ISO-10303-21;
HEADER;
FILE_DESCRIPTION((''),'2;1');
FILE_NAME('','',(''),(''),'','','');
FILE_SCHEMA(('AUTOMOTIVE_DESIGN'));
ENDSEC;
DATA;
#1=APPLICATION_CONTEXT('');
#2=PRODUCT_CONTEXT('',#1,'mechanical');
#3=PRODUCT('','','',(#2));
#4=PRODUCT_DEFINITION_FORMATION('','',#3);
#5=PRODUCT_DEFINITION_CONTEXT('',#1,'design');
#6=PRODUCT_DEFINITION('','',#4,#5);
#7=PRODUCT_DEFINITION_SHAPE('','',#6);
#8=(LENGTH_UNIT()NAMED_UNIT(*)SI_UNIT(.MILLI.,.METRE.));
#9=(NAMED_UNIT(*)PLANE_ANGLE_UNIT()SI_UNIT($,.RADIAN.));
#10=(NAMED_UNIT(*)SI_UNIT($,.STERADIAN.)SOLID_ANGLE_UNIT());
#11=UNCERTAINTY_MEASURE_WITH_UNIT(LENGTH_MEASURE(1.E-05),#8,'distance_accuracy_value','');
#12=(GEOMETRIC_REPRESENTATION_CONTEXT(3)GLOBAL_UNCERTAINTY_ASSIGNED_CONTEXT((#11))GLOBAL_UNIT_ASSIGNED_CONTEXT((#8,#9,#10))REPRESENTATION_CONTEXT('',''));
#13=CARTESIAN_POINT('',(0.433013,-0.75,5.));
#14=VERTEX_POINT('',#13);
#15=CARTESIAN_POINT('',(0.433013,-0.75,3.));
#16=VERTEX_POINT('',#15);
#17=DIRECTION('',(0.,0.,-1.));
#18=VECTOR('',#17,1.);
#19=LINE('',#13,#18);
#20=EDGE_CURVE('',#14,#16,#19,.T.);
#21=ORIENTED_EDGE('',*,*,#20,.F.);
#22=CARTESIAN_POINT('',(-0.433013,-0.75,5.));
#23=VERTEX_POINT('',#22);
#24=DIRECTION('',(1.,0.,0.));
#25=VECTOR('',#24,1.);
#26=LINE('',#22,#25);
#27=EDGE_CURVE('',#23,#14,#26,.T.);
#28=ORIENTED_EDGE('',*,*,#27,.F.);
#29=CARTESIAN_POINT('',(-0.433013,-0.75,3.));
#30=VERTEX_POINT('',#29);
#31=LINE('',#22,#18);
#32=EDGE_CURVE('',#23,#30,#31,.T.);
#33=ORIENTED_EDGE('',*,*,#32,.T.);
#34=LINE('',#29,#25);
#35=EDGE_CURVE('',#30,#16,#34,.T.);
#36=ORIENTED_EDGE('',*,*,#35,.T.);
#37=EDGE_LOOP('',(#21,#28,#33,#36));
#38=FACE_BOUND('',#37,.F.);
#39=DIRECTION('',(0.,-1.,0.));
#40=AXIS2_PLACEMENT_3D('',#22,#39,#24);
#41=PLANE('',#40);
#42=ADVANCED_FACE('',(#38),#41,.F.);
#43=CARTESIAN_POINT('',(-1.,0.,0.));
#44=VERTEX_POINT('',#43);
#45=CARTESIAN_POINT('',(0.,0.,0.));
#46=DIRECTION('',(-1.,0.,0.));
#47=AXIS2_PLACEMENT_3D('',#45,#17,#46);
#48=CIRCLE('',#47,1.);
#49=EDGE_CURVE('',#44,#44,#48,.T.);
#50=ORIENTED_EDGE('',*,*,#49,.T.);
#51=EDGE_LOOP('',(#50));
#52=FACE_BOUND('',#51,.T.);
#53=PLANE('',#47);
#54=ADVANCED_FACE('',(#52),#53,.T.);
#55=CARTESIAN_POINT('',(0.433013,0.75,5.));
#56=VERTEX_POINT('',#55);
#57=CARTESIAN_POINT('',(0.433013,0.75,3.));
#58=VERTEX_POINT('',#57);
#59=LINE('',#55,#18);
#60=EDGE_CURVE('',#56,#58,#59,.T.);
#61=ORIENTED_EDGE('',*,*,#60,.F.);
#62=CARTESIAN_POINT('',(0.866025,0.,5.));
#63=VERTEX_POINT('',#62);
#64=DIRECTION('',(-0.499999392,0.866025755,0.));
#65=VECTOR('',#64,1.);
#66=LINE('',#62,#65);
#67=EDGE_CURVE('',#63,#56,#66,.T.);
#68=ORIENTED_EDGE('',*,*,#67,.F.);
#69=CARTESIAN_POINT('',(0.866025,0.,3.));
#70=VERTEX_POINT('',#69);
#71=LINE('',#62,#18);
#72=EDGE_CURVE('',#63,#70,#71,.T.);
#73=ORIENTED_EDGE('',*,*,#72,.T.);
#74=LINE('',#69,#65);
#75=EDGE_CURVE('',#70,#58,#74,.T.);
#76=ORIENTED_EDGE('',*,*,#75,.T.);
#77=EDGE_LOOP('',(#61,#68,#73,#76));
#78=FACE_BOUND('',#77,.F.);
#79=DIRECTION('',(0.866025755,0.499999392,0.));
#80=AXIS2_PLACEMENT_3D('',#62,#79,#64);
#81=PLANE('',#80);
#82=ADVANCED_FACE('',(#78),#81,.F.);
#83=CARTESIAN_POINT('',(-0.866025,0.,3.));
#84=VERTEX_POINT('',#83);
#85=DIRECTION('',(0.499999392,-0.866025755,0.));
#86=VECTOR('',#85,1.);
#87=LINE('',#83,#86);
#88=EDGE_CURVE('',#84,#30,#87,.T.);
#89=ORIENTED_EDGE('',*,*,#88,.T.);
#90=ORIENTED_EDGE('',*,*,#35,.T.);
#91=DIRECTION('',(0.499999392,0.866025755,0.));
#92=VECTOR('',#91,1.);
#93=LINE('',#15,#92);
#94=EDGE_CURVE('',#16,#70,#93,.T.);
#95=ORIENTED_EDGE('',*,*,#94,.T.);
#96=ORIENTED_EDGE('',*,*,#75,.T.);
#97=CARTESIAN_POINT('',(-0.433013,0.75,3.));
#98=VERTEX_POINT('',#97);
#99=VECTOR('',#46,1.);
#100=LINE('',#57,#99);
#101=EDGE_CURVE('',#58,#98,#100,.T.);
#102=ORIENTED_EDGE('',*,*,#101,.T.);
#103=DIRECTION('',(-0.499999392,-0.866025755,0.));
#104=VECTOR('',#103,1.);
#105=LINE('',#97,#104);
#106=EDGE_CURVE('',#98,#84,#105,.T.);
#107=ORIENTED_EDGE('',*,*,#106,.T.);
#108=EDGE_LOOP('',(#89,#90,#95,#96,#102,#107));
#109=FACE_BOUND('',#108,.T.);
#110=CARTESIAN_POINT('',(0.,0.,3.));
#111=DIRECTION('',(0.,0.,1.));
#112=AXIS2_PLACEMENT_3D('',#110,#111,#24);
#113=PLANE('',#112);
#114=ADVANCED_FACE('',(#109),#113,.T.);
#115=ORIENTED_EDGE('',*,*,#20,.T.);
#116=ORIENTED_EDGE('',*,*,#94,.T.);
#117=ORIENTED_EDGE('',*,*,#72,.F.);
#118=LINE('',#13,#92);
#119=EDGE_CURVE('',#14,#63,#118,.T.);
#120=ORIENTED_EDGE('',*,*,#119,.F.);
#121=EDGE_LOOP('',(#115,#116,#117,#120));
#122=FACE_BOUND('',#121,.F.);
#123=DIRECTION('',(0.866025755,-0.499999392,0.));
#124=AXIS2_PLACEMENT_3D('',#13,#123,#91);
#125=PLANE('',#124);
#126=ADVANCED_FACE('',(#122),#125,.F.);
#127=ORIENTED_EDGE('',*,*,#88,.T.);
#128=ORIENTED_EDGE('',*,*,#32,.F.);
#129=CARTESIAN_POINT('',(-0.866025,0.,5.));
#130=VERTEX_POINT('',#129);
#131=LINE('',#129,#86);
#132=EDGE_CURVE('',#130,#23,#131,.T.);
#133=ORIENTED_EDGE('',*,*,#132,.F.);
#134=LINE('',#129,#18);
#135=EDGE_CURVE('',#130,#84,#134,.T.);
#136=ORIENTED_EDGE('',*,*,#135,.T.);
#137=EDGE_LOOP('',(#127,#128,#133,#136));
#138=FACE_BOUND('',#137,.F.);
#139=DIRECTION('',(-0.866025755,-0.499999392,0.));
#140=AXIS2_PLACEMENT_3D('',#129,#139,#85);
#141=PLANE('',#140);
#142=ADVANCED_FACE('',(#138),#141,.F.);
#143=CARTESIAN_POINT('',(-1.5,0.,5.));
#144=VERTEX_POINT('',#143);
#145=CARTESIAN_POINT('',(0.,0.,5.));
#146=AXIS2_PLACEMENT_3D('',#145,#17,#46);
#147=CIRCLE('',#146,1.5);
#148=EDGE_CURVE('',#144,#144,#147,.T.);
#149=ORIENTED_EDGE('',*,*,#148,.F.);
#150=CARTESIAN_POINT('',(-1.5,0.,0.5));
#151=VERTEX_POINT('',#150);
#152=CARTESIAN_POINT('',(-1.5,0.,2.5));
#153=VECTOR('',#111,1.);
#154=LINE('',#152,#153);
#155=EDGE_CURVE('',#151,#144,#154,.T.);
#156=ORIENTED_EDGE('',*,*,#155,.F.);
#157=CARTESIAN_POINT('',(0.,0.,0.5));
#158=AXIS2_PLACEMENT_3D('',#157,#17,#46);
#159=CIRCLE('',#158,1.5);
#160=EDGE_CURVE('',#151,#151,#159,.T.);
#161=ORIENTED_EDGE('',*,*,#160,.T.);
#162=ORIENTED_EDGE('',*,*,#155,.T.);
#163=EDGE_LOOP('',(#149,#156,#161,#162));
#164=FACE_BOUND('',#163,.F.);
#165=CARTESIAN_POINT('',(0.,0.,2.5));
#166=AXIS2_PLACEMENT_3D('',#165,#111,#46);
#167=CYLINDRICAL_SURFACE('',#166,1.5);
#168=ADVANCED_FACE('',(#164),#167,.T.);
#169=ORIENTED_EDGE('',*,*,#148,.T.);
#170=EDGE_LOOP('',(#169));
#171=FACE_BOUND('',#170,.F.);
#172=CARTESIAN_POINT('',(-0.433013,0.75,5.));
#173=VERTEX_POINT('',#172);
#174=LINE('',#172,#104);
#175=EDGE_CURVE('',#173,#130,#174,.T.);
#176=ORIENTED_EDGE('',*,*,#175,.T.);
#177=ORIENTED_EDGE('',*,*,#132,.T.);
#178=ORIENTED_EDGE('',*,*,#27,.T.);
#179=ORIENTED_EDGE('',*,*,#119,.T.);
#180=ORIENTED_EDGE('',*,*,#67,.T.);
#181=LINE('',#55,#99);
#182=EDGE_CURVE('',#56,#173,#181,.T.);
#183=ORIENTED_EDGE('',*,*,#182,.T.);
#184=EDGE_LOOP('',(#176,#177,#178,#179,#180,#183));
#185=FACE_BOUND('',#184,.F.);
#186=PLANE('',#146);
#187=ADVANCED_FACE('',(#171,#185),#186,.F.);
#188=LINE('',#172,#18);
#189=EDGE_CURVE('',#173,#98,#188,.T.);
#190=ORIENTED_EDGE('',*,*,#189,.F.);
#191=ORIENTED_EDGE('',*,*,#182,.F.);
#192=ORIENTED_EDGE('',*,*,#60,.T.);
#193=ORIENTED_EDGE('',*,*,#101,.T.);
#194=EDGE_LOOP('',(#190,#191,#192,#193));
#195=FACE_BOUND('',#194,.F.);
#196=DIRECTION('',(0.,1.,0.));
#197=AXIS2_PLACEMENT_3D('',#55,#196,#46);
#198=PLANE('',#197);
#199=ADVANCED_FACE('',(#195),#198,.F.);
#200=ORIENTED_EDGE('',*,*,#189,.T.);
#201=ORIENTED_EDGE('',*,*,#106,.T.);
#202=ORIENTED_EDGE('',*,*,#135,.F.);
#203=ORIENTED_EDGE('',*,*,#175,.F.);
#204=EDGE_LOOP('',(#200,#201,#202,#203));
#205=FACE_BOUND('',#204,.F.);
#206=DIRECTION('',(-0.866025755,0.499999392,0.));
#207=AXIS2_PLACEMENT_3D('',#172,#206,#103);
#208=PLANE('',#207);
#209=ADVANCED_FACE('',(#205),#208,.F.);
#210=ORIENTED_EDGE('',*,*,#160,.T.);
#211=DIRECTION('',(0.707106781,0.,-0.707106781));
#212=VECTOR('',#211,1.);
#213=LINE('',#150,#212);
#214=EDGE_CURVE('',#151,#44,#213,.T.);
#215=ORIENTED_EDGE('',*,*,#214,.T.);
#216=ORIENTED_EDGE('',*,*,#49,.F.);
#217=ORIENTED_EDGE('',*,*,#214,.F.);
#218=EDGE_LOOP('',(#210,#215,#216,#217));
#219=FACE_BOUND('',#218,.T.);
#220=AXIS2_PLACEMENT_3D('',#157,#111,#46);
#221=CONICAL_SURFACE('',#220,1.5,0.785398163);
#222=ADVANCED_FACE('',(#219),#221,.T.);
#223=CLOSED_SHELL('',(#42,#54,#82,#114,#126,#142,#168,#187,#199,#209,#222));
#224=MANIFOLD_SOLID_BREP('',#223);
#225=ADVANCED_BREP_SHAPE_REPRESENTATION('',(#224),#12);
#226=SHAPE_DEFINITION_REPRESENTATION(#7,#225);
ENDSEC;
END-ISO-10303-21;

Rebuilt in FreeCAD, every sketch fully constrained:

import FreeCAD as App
import Part
import Sketcher
Q = App.Units.Quantity


def edges_at(feature, points):
    """Names of the edges that pass closest to the given points."""
    edges = feature.Shape.Edges
    near = lambda p: min(range(len(edges)), key=lambda i: edges[i].distToShape(Part.Vertex(*p))[0])
    return sorted({f"Edge{near(p) + 1}" for p in points})


def add_polygon(sketch, points):
    """Adds a closed chain of lines whose ends are joined by coincident constraints."""
    first, n = sketch.GeometryCount, len(points)
    for a, b in zip(points, points[1:] + points[:1]):
        sketch.addGeometry(Part.LineSegment(App.Vector(*a, 0), App.Vector(*b, 0)), False)
    for i in range(n):
        sketch.addConstraint(Sketcher.Constraint("Coincident", first + i, 2, first + (i + 1) % n, 1))

doc = App.newDocument("Part")
params = doc.addObject("Spreadsheet::Sheet", "Params")
for row, (alias, value) in enumerate([
    ("sketch1_height", "5 mm"),
    ("sketch1_width", "1.5 mm"),
    ("revolution_angle", "360 deg"),
    ("chamfer_size", "0.5 mm"),
    ("pocket1_length", "2 mm"),
], start=1):
    params.set(f"A{row}", alias)
    params.set(f"B{row}", "=" + value)
    params.setAlias(f"B{row}", alias)

body = doc.addObject("PartDesign::Body", "Body")

sketch1 = body.newObject("Sketcher::SketchObject", "Sketch")
sketch1.AttachmentSupport = (doc.getObject("XZ_Plane"), [""])
sketch1.MapMode = "FlatFace"
add_polygon(sketch1, [(-1.5, 5), (-1.5, 0), (0, 0), (0, 5)])
sketch1.addConstraint(Sketcher.Constraint("Vertical", 0))
sketch1.addConstraint(Sketcher.Constraint("Horizontal", 1))
sketch1.addConstraint(Sketcher.Constraint("Vertical", 2))
sketch1.addConstraint(Sketcher.Constraint("Horizontal", 3))
sketch1.addConstraint(Sketcher.Constraint("Coincident", 1, 2, -1, 1))
sketch1.addConstraint(Sketcher.Constraint("DistanceY", 0, 2, 0, 1, Q("5 mm")))
sketch1.addConstraint(Sketcher.Constraint("DistanceX", 1, 1, 1, 2, Q("1.5 mm")))
sketch1.setExpression("Constraints[9]", "Params.sketch1_height")
sketch1.setExpression("Constraints[10]", "Params.sketch1_width")
revolution = body.newObject("PartDesign::Revolution", "Revolution")
revolution.Profile = sketch1
revolution.ReferenceAxis = (sketch1, ["V_Axis"])
revolution.setExpression("Angle", "Params.revolution_angle")
doc.recompute()

chamfer = body.newObject("PartDesign::Chamfer", "Chamfer")
chamfer.Base = (revolution, edges_at(revolution, [(1.5, 0, 0)]))
chamfer.setExpression("Size", "Params.chamfer_size")

sketch2 = body.newObject("Sketcher::SketchObject", "Sketch001")
sketch2.AttachmentSupport = (doc.getObject("XY_Plane"), [""])
sketch2.MapMode = "FlatFace"
sketch2.AttachmentOffset = App.Placement(App.Vector(0, 0, 5), App.Rotation())
add_polygon(sketch2, [(-0.433013, -0.75), (0.433013, -0.75), (0.866025, 0), (0.433013, 0.75), (-0.433013, 0.75), (-0.866025, 0)])
sketch2.addConstraint(Sketcher.Constraint("Horizontal", 0))
sketch2.addConstraint(Sketcher.Constraint("Horizontal", 3))
sketch2.addConstraint(Sketcher.Constraint("Symmetric", 0, 2, 3, 2, -1, 1))
sketch2.addConstraint(Sketcher.Constraint("Symmetric", 1, 2, 4, 2, -1, 1))
sketch2.addConstraint(Sketcher.Constraint("PointOnObject", 1, 2, -1))
sketch2.addConstraint(Sketcher.Constraint("Parallel", 2, 5))
sketch2.addConstraint(Sketcher.Constraint("Vertical", 0, 2, 2, 2))
sketch2.addConstraint(Sketcher.Constraint("DistanceY", 0, 2, 2, 2, Q("1.5 mm")))
sketch2.addConstraint(Sketcher.Constraint("DistanceX", 0, 1, 0, 2, Q("0.866026 mm")))
sketch2.addConstraint(Sketcher.Constraint("DistanceX", 4, 2, 1, 2, Q("1.73205 mm")))
pocket1 = body.newObject("PartDesign::Pocket", "Pocket")
pocket1.Profile = sketch2
pocket1.setExpression("Length", "Params.pocket1_length")

doc.recompute()
